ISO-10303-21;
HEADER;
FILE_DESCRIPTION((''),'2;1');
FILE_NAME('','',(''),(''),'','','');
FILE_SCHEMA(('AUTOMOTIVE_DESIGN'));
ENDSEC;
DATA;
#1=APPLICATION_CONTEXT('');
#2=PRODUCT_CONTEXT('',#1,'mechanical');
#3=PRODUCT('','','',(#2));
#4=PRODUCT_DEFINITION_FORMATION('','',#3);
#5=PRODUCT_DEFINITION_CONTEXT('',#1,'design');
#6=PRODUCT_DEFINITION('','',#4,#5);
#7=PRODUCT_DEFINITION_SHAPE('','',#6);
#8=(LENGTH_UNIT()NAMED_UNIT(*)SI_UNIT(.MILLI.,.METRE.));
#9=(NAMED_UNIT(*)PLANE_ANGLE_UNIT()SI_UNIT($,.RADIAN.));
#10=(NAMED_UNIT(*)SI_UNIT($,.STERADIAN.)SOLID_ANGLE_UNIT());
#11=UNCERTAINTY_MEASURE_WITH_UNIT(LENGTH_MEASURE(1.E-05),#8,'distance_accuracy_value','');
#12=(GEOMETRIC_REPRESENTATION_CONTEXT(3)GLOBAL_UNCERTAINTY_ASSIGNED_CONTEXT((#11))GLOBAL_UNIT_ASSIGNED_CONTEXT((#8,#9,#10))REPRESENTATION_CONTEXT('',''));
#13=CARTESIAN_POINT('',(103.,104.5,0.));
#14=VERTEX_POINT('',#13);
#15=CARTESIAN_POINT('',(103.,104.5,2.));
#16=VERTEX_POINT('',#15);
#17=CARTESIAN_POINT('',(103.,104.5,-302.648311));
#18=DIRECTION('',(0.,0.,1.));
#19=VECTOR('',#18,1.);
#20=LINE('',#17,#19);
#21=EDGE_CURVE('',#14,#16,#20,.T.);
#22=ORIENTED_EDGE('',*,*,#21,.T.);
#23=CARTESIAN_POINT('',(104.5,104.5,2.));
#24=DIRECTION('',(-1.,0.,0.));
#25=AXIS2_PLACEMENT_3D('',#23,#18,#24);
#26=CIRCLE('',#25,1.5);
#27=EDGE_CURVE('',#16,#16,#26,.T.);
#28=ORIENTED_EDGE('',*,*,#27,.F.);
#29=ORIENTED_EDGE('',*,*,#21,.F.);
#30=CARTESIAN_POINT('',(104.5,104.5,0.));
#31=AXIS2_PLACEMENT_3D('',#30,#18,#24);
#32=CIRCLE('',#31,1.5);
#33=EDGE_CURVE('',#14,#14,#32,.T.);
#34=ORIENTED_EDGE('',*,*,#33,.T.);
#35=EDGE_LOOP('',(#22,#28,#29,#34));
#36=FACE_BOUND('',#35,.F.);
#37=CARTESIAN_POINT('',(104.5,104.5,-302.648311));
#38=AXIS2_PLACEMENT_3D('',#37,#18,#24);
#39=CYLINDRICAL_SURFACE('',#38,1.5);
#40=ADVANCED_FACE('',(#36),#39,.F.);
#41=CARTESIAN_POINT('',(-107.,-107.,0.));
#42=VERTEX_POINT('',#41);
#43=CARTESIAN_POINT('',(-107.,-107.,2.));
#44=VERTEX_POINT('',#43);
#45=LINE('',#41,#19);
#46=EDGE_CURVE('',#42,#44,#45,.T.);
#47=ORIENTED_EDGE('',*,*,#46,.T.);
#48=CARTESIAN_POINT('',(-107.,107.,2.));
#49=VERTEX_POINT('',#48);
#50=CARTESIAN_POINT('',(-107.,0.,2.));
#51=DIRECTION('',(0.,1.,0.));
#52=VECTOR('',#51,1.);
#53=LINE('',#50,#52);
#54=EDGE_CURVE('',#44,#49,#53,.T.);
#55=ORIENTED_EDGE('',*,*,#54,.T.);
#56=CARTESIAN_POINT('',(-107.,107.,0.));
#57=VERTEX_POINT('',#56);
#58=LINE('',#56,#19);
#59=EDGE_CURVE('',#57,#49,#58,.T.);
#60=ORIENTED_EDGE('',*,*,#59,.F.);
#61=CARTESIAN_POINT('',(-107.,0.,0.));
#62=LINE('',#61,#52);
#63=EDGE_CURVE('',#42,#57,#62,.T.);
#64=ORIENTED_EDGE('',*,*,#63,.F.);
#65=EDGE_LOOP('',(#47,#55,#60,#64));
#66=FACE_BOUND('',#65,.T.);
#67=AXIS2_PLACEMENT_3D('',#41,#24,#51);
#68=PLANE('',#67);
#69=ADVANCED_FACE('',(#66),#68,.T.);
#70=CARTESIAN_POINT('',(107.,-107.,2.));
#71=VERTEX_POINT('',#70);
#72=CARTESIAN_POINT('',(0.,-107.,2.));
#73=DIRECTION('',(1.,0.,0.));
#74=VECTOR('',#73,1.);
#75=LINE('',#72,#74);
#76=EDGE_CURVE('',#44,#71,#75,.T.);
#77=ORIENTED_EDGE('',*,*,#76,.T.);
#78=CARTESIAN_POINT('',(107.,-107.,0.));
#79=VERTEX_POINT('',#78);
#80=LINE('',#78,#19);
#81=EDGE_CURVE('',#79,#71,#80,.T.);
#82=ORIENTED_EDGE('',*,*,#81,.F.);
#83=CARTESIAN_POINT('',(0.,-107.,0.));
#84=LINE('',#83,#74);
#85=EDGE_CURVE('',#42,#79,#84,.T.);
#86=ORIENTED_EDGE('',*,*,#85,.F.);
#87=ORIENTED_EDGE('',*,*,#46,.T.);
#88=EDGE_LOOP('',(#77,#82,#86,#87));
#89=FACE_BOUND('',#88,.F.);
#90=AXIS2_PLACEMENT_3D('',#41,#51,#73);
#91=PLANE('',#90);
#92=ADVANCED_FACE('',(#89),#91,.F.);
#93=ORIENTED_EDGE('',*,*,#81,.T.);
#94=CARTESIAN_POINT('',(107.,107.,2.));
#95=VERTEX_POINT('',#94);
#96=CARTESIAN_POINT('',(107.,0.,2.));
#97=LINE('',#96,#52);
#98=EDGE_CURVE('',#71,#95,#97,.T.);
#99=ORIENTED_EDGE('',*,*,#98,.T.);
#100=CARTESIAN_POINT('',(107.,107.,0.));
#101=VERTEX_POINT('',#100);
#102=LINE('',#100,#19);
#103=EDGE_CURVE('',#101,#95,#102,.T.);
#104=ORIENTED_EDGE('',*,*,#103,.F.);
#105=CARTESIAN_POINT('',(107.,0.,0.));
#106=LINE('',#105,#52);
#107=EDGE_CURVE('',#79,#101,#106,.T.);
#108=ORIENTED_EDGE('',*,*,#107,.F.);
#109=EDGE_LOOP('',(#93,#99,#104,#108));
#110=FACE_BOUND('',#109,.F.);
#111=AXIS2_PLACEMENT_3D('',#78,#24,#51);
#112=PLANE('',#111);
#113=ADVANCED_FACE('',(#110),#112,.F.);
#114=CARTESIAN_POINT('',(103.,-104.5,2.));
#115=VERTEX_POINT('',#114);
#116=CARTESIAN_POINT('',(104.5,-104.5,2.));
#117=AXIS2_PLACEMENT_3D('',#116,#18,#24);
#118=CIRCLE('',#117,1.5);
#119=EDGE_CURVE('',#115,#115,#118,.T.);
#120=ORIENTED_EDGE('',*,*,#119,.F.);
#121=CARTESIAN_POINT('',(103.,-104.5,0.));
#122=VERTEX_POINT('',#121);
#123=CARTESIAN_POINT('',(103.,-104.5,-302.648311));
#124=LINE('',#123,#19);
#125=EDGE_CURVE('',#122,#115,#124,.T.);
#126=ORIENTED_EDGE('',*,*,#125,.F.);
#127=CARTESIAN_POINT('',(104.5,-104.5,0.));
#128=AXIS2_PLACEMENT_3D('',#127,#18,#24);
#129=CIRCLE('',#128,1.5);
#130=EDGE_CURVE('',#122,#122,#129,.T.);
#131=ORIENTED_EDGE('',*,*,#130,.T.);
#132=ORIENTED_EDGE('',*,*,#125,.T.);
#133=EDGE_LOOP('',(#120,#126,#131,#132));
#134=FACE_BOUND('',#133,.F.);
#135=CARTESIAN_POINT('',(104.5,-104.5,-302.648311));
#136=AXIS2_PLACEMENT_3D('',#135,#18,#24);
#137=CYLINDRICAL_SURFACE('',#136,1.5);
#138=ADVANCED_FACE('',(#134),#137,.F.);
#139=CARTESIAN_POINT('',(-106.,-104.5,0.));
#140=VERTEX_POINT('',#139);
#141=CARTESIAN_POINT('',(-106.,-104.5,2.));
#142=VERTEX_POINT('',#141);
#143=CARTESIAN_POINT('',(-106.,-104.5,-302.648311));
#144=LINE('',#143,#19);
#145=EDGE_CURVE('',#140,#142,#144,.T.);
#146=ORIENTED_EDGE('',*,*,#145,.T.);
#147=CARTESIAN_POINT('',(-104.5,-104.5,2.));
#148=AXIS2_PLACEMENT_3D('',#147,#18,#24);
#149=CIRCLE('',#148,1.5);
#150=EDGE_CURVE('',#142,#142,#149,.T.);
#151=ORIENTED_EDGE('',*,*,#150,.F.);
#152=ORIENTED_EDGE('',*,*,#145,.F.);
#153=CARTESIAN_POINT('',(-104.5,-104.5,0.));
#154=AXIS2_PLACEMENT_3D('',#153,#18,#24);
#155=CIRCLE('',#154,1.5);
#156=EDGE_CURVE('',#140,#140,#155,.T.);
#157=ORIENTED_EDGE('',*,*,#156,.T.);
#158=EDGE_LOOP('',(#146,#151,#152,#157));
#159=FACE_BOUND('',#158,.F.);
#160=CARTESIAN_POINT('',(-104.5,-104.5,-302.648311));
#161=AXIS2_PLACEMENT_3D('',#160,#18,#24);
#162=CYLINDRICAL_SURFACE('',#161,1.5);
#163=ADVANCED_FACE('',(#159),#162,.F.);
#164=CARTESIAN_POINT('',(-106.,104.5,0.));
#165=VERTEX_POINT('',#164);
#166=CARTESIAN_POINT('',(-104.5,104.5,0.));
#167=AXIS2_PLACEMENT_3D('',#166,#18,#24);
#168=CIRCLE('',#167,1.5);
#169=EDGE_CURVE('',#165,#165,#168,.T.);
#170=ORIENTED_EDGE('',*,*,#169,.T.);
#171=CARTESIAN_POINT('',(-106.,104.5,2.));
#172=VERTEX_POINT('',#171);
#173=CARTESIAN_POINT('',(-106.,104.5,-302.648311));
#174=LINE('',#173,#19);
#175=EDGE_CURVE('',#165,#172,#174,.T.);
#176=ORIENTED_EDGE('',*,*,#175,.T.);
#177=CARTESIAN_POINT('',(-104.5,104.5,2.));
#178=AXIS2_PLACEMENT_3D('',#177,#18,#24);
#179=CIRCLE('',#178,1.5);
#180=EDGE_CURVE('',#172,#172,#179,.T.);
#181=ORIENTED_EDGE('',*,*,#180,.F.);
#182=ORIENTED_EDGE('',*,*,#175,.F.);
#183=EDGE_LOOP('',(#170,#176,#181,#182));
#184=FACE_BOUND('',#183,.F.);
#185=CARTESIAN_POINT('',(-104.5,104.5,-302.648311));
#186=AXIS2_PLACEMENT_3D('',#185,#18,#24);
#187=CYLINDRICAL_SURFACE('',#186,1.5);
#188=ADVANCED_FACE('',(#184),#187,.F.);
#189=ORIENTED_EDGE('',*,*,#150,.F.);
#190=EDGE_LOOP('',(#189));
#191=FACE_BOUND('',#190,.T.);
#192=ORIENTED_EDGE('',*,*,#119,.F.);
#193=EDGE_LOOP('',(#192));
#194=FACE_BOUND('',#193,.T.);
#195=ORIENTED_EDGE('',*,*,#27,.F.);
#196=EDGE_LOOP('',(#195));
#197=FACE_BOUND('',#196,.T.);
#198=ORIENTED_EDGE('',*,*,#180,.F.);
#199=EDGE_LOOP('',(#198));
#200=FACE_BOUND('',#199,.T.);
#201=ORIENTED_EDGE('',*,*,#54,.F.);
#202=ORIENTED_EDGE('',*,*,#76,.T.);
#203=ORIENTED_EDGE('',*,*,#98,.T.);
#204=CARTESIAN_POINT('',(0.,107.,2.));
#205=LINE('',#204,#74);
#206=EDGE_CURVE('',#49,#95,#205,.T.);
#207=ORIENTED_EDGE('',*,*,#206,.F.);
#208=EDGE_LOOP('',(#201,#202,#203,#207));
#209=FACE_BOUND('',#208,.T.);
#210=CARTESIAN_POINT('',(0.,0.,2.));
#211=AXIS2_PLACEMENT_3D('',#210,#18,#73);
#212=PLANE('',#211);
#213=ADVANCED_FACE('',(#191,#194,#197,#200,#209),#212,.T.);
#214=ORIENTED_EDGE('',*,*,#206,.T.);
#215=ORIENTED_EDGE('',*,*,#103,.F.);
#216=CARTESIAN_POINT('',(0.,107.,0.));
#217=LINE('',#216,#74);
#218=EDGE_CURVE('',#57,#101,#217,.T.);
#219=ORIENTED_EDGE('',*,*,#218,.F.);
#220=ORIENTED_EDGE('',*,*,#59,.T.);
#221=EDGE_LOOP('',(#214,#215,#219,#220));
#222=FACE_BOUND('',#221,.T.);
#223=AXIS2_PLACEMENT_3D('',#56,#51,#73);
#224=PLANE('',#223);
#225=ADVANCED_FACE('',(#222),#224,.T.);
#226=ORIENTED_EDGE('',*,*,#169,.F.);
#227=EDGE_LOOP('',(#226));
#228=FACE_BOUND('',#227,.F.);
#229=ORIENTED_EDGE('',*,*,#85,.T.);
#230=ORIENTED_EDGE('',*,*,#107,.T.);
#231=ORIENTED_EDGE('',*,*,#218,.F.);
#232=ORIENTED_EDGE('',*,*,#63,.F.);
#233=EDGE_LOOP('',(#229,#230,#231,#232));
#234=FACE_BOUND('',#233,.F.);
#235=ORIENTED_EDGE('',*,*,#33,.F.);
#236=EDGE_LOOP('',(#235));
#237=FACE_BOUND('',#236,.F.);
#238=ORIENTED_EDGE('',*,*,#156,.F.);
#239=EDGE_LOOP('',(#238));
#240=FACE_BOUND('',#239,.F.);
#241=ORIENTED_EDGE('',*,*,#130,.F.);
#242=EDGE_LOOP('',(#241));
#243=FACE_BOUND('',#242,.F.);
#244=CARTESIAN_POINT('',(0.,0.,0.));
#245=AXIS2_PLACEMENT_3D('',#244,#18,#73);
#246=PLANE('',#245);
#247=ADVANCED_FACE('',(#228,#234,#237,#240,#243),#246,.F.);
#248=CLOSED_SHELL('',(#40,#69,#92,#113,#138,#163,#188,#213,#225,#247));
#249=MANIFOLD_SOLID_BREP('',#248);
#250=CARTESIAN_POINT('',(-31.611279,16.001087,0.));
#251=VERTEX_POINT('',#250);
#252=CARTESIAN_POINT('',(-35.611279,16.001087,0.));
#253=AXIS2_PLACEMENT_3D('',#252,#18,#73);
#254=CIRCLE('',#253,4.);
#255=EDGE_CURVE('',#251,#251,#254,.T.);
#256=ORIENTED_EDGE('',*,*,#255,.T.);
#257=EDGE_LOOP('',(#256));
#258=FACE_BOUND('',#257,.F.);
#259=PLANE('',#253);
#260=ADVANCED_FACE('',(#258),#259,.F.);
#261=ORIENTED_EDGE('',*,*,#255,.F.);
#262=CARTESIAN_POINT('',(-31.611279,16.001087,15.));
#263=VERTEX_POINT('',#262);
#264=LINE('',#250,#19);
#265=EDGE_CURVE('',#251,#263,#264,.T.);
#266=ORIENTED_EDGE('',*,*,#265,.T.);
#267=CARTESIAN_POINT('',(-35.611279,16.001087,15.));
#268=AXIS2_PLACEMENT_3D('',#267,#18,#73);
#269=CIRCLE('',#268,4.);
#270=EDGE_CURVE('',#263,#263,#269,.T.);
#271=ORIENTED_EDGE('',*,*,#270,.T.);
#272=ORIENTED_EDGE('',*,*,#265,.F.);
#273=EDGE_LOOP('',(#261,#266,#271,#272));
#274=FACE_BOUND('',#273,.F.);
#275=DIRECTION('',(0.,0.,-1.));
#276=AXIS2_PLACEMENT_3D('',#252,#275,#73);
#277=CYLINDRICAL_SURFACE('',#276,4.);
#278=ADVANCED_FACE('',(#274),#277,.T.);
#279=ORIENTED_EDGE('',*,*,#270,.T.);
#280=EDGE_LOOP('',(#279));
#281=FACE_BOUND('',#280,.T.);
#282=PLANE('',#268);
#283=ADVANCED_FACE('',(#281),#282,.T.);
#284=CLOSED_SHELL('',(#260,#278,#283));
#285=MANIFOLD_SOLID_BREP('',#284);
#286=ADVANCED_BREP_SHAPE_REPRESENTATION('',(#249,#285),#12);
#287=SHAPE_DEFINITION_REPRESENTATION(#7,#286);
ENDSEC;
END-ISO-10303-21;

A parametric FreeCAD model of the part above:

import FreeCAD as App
import Part
import Sketcher
Q = App.Units.Quantity

doc = App.newDocument("Part")
body = doc.addObject("PartDesign::Body", "Body")

# Sketch on XY plane
sketch1 = doc.addObject("Sketcher::SketchObject", "Sketch")
body.addObject(sketch1)
sketch1.AttachmentSupport = (doc.XY_Plane, [""])
sketch1.MapMode = "FlatFace"
sketch1.addGeometry(Part.LineSegment(App.Vector(-107, 107, 0), App.Vector(-107, -107, 0)), False)
sketch1.addGeometry(Part.LineSegment(App.Vector(-107, -107, 0), App.Vector(107, -107, 0)), False)
sketch1.addGeometry(Part.LineSegment(App.Vector(107, -107, 0), App.Vector(107, 107, 0)), False)
sketch1.addGeometry(Part.LineSegment(App.Vector(107, 107, 0), App.Vector(-107, 107, 0)), False)
sketch1.addConstraint(Sketcher.Constraint("Coincident", 0, 2, 1, 1))
sketch1.addConstraint(Sketcher.Constraint("Coincident", 1, 2, 2, 1))
sketch1.addConstraint(Sketcher.Constraint("Coincident", 2, 2, 3, 1))
sketch1.addConstraint(Sketcher.Constraint("Coincident", 3, 2, 0, 1))
sketch1.addConstraint(Sketcher.Constraint("Vertical", 0))
sketch1.addConstraint(Sketcher.Constraint("Horizontal", 1))
sketch1.addConstraint(Sketcher.Constraint("Vertical", 2))
sketch1.addConstraint(Sketcher.Constraint("Horizontal", 3))
sketch1.addConstraint(Sketcher.Constraint("Symmetric", 0, 2, 2, 2, -1, 1))
sketch1.addConstraint(Sketcher.Constraint("Equal", 3, 0))
sketch1.addConstraint(Sketcher.Constraint("DistanceX", 1, 1, 1, 2, Q("214 mm")))
pad1 = doc.addObject("PartDesign::Pad", "Pad")
body.addObject(pad1)
pad1.Profile = sketch1
pad1.Length = 2

# Sketch on XY plane
sketch2 = doc.addObject("Sketcher::SketchObject", "Sketch001")
body.addObject(sketch2)
sketch2.AttachmentSupport = (doc.XY_Plane, [""])
sketch2.MapMode = "FlatFace"
sketch2.addGeometry(Part.Circle(App.Vector(-104.5, -104.5, 0), App.Vector(0, 0, 1), 1.5), False)
sketch2.addGeometry(Part.Circle(App.Vector(104.5, -104.5, 0), App.Vector(0, 0, 1), 1.5), False)
sketch2.addGeometry(Part.Circle(App.Vector(-104.5, 104.5, 0), App.Vector(0, 0, 1), 1.5), False)
sketch2.addGeometry(Part.Circle(App.Vector(104.5, 104.5, 0), App.Vector(0, 0, 1), 1.5), False)
sketch2.addConstraint(Sketcher.Constraint("Equal", 0, 1))
sketch2.addConstraint(Sketcher.Constraint("Equal", 1, 2))
sketch2.addConstraint(Sketcher.Constraint("Equal", 2, 3))
sketch2.addConstraint(Sketcher.Constraint("Symmetric", 1, 3, 2, 3, -1, 1))
sketch2.addConstraint(Sketcher.Constraint("Symmetric", 0, 3, 3, 3, -1, 1))
sketch2.addConstraint(Sketcher.Constraint("Symmetric", 0, 3, 1, 3, -2))
sketch2.addConstraint(Sketcher.Constraint("Diameter", 0, Q("3 mm")))
sketch2.addConstraint(Sketcher.Constraint("DistanceX", 0, 3, 1, 3, Q("209 mm")))
sketch2.addConstraint(Sketcher.Constraint("DistanceY", 0, 3, 2, 3, Q("209 mm")))
doc.recompute()
hole = doc.addObject("PartDesign::Hole", "Hole")
body.addObject(hole)
hole.Profile = sketch2
hole.ThreadType = "None"
hole.Diameter = 3
hole.DepthType = "ThroughAll"
hole.Reversed = True
body2 = doc.addObject("PartDesign::Body", "Body001")

# Sketch on XY plane
sketch3 = doc.addObject("Sketcher::SketchObject", "Sketch002")
body2.addObject(sketch3)
sketch3.AttachmentSupport = (doc.getObject("XY_Plane001"), [""])
sketch3.MapMode = "FlatFace"
sketch3.addGeometry(Part.Circle(App.Vector(-35.6, 16, 0), App.Vector(0, 0, 1), 4), False)
sketch3.addConstraint(Sketcher.Constraint("Diameter", 0, Q("8 mm")))
sketch3.addConstraint(Sketcher.Constraint("DistanceX", 0, 3, -1, 1, Q("35.611279 mm")))
sketch3.addConstraint(Sketcher.Constraint("DistanceY", -1, 1, 0, 3, Q("16.001087 mm")))
pad2 = doc.addObject("PartDesign::Pad", "Pad001")
body2.addObject(pad2)
pad2.Profile = sketch3
pad2.Length = 15

doc.recompute()
